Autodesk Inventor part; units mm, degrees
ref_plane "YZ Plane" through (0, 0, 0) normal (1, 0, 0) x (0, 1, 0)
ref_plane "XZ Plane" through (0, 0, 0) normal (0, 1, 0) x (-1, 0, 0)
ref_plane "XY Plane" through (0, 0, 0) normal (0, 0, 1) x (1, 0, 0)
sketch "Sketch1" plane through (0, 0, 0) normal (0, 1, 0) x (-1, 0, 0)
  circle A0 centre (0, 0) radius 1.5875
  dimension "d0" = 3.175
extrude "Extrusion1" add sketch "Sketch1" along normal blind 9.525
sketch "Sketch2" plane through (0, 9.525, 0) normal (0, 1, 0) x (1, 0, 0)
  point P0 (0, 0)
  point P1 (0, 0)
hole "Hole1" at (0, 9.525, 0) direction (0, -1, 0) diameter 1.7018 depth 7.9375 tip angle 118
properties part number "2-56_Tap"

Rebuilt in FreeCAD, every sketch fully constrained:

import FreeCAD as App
import Part
import Sketcher

V = App.Vector
Q = App.Units.Quantity

doc = App.newDocument("Part")
body = doc.addObject("PartDesign::Body", "Body")

# Sketch on XZ plane
sketch1 = body.newObject("Sketcher::SketchObject", "Sketch")
sketch1.AttachmentSupport = (doc.getObject("XZ_Plane"), [""])
sketch1.MapMode = "FlatFace"
sketch1.addGeometry(Part.Circle(V(0, 0, 0), V(0, 0, 1), 1.5875), False)
sketch1.addConstraint([
    Sketcher.Constraint("Coincident", 0, 3, -1, 1),
    Sketcher.Constraint("Diameter", 0, Q("0.125 in")),
])
pad1 = body.newObject("PartDesign::Pad", "Pad")
pad1.Profile = sketch1
pad1.Length = Q("0.375 in")
pad1.Reversed = True

# Sketch on XZ plane
sketch2 = body.newObject("Sketcher::SketchObject", "Sketch001")
sketch2.AttachmentSupport = (doc.getObject("XZ_Plane"), [""])
sketch2.MapMode = "FlatFace"
sketch2.AttachmentOffset = App.Placement(V(0, 0, -0.375 * 25.4), App.Rotation())
sketch2.addGeometry(Part.Circle(V(0, 0, 0), V(0, 0, 1), 0.8509), False)
sketch2.addConstraint([
    Sketcher.Constraint("Coincident", 0, 3, -1, 1),
    Sketcher.Constraint("Diameter", 0, Q("0.067 in")),
])
doc.recompute()
hole = body.newObject("PartDesign::Hole", "Hole")
hole.Profile = sketch2
hole.ThreadType = "None"
hole.Diameter = Q("0.067 in")
hole.DepthType = "Dimension"
hole.Depth = Q("0.3125 in")
hole.DrillPoint = "Angled"
hole.DrillPointAngle = 118
hole.Reversed = True

doc.recompute()
